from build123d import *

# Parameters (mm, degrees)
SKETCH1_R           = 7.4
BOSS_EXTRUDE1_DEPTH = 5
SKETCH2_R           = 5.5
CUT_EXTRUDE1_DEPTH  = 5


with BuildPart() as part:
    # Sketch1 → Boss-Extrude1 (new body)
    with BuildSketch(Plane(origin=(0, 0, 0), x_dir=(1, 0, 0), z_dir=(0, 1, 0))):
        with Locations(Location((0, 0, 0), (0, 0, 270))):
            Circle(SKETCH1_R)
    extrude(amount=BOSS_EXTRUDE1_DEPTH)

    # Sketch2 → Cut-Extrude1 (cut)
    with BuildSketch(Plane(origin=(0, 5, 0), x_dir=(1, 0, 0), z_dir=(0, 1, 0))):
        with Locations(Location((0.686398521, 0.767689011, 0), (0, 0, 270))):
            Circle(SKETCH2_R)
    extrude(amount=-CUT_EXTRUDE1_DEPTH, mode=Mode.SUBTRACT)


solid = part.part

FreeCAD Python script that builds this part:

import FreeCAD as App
import Part
import Sketcher

V = App.Vector

doc = App.newDocument("Part")
body = doc.addObject("PartDesign::Body", "Body")

# Sketch on XZ plane
sketch1 = body.newObject("Sketcher::SketchObject", "Sketch")
sketch1.AttachmentSupport = (doc.getObject("XZ_Plane"), [""])
sketch1.MapMode = "FlatFace"
sketch1.addGeometry(Part.Circle(V(0, 0, 0), V(0, 0, 1), 7.4), False)
sketch1.addConstraint(Sketcher.Constraint("Coincident", 0, 3, -1, 1))
sketch1.addConstraint(Sketcher.Constraint("Diameter", 0, 14.8))
pad1 = body.newObject("PartDesign::Pad", "Pad")
pad1.Profile = sketch1
pad1.Length = 5
pad1.Reversed = True

# Sketch on XZ plane
sketch2 = body.newObject("Sketcher::SketchObject", "Sketch001")
sketch2.AttachmentSupport = (doc.getObject("XZ_Plane"), [""])
sketch2.MapMode = "FlatFace"
sketch2.AttachmentOffset = App.Placement(V(0, 0, -5), App.Rotation())
sketch2.addGeometry(Part.Circle(V(0.686399, -0.767689, 0), V(0, 0, 1), 5.5), False)
sketch2.addConstraint(Sketcher.Constraint("Diameter", 0, 11.0))
sketch2.addConstraint(Sketcher.Constraint("DistanceX", -1, 1, 0, 3, 0.686399))
sketch2.addConstraint(Sketcher.Constraint("DistanceY", 0, 3, -1, 1, 0.767689))
pocket1 = body.newObject("PartDesign::Pocket", "Pocket")
pocket1.Profile = sketch2
pocket1.Length = 5
pocket1.Reversed = True

doc.recompute()
